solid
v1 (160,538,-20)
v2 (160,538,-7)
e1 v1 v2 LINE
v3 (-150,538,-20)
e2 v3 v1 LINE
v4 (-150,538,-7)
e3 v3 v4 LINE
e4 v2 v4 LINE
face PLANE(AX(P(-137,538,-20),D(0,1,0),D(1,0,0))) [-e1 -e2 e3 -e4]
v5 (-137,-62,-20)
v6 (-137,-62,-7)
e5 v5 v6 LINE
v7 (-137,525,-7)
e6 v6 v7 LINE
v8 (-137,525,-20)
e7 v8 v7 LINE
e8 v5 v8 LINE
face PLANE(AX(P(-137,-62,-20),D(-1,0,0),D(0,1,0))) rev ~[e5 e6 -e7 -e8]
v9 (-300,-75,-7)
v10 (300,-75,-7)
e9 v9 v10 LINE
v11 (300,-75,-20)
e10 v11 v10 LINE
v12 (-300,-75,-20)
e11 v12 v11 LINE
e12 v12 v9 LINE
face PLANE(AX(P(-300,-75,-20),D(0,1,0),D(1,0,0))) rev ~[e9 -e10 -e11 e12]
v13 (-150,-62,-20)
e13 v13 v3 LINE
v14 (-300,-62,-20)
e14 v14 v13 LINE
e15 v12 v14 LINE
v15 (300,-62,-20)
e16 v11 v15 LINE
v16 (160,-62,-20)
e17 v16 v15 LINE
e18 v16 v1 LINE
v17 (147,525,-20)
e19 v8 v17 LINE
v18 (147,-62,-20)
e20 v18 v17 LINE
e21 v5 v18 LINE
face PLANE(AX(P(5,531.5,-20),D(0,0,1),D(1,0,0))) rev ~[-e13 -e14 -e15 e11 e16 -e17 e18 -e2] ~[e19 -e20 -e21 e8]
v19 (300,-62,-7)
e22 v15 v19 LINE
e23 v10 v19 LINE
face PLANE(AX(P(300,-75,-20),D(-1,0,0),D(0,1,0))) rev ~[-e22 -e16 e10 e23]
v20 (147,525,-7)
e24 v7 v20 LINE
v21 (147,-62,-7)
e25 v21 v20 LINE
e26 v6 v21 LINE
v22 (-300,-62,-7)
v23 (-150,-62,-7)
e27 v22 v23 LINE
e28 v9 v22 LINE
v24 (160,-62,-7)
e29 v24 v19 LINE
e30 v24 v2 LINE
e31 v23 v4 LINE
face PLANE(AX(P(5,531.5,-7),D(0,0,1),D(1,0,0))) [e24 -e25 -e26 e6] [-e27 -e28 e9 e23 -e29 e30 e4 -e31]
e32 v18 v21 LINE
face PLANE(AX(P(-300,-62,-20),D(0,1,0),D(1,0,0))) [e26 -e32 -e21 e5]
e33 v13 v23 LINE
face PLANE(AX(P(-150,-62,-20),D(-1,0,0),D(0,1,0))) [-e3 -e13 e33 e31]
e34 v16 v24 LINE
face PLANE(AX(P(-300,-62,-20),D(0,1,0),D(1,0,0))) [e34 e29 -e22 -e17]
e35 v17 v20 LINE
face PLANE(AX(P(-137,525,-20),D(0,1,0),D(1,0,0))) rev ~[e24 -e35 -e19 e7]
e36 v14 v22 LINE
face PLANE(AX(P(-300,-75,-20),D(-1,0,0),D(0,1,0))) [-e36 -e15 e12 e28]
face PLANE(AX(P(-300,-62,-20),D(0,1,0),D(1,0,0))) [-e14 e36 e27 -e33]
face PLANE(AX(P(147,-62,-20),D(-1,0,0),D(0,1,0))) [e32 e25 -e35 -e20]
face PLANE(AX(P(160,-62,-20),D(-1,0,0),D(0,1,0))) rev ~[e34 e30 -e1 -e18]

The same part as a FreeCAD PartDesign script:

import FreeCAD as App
import Part
import Sketcher
from FreeCAD import Vector


def add_polygon(sketch, points):
    """Adds a closed chain of lines whose ends are joined by coincident constraints."""
    first, n = sketch.GeometryCount, len(points)
    for a, b in zip(points, points[1:] + points[:1]):
        sketch.addGeometry(Part.LineSegment(App.Vector(*a, 0), App.Vector(*b, 0)), False)
    for i in range(n):
        sketch.addConstraint(Sketcher.Constraint("Coincident", first + i, 2, first + (i + 1) % n, 1))

doc = App.newDocument("Part")
params = doc.addObject("Spreadsheet::Sheet", "Params")
for row, (alias, value) in enumerate([
    ("sketch1_width", "284 mm"),
    ("sketch1_height", "13 mm"),
    ("pad1_length", "13 mm"),
    ("sketch2_width", "13 mm"),
    ("sketch2_height", "600 mm"),
    ("pad2_length", "13 mm"),
    ("sketch3_width", "600 mm"),
    ("sketch3_height", "13 mm"),
    ("pad3_length", "13 mm"),
    ("sketch4_width", "13 mm"),
    ("sketch4_height", "600 mm"),
    ("pad4_length", "13 mm"),
], start=1):
    params.set(f"A{row}", alias)
    params.set(f"B{row}", "=" + value)
    params.setAlias(f"B{row}", alias)

body = doc.addObject("PartDesign::Body", "Body")

# Sketch on XY plane
sketch1 = body.newObject("Sketcher::SketchObject", "Sketch")
sketch1.AttachmentSupport = (doc.getObject("XY_Plane"), [""])
sketch1.MapMode = "FlatFace"
sketch1.AttachmentOffset = App.Placement(Vector(0, 0, -20), App.Rotation())
add_polygon(sketch1, [(-137, 538), (-137, 525), (147, 525), (147, 538)])  # lines 0-3
sketch1.addConstraint(Sketcher.Constraint("Vertical", 0))
sketch1.addConstraint(Sketcher.Constraint("Horizontal", 1))
sketch1.addConstraint(Sketcher.Constraint("Vertical", 2))
sketch1.addConstraint(Sketcher.Constraint("Horizontal", 3))
sketch1.addConstraint(Sketcher.Constraint("DistanceX", 1, 1, 1, 2, 284.0))
sketch1.addConstraint(Sketcher.Constraint("DistanceY", 0, 2, 0, 1, 13.0))
sketch1.addConstraint(Sketcher.Constraint("DistanceX", 0, 2, -1, 1, 137.0))
sketch1.addConstraint(Sketcher.Constraint("DistanceY", -1, 1, 0, 2, 525.0))
sketch1.setExpression("Constraints[8]", "Params.sketch1_width")
sketch1.setExpression("Constraints[9]", "Params.sketch1_height")
pad1 = body.newObject("PartDesign::Pad", "Pad")
pad1.Profile = sketch1
pad1.setExpression("Length", "Params.pad1_length")
body2 = doc.addObject("PartDesign::Body", "Body001")

# Sketch on XY plane
sketch2 = body2.newObject("Sketcher::SketchObject", "Sketch001")
sketch2.AttachmentSupport = (doc.getObject("XY_Plane001"), [""])
sketch2.MapMode = "FlatFace"
sketch2.AttachmentOffset = App.Placement(Vector(0, 0, -20), App.Rotation())
add_polygon(sketch2, [(-150, 538), (-150, -62), (-137, -62), (-137, 538)])  # lines 0-3
sketch2.addConstraint(Sketcher.Constraint("Vertical", 0))
sketch2.addConstraint(Sketcher.Constraint("Horizontal", 1))
sketch2.addConstraint(Sketcher.Constraint("Vertical", 2))
sketch2.addConstraint(Sketcher.Constraint("Horizontal", 3))
sketch2.addConstraint(Sketcher.Constraint("DistanceX", 1, 1, 1, 2, 13.0))
sketch2.addConstraint(Sketcher.Constraint("DistanceY", 0, 2, 0, 1, 600.0))
sketch2.addConstraint(Sketcher.Constraint("DistanceX", 0, 2, -1, 1, 150.0))
sketch2.addConstraint(Sketcher.Constraint("DistanceY", 0, 2, -1, 1, 62.0))
sketch2.setExpression("Constraints[8]", "Params.sketch2_width")
sketch2.setExpression("Constraints[9]", "Params.sketch2_height")
pad2 = body2.newObject("PartDesign::Pad", "Pad001")
pad2.Profile = sketch2
pad2.setExpression("Length", "Params.pad2_length")
body3 = doc.addObject("PartDesign::Body", "Body002")

# Sketch on XY plane
sketch3 = body3.newObject("Sketcher::SketchObject", "Sketch002")
sketch3.AttachmentSupport = (doc.getObject("XY_Plane002"), [""])
sketch3.MapMode = "FlatFace"
sketch3.AttachmentOffset = App.Placement(Vector(0, 0, -20), App.Rotation())
add_polygon(sketch3, [(-300, -62), (-300, -75), (300, -75), (300, -62)])  # lines 0-3
sketch3.addConstraint(Sketcher.Constraint("Vertical", 0))
sketch3.addConstraint(Sketcher.Constraint("Horizontal", 1))
sketch3.addConstraint(Sketcher.Constraint("Vertical", 2))
sketch3.addConstraint(Sketcher.Constraint("Horizontal", 3))
sketch3.addConstraint(Sketcher.Constraint("DistanceX", 1, 1, 1, 2, 600.0))
sketch3.addConstraint(Sketcher.Constraint("DistanceY", 0, 2, 0, 1, 13.0))
sketch3.addConstraint(Sketcher.Constraint("DistanceX", 0, 2, -1, 1, 300.0))
sketch3.addConstraint(Sketcher.Constraint("DistanceY", 0, 2, -1, 1, 75.0))
sketch3.setExpression("Constraints[8]", "Params.sketch3_width")
sketch3.setExpression("Constraints[9]", "Params.sketch3_height")
pad3 = body3.newObject("PartDesign::Pad", "Pad002")
pad3.Profile = sketch3
pad3.setExpression("Length", "Params.pad3_length")
body4 = doc.addObject("PartDesign::Body", "Body003")
body4.AllowCompound = True

# Sketch on XY plane
sketch4 = body4.newObject("Sketcher::SketchObject", "Sketch003")
sketch4.AttachmentSupport = (doc.getObject("XY_Plane003"), [""])
sketch4.MapMode = "FlatFace"
sketch4.AttachmentOffset = App.Placement(Vector(0, 0, -20), App.Rotation())
add_polygon(sketch4, [(147, 538), (147, -62), (160, -62), (160, 538)])  # lines 0-3
sketch4.addConstraint(Sketcher.Constraint("Vertical", 0))
sketch4.addConstraint(Sketcher.Constraint("Horizontal", 1))
sketch4.addConstraint(Sketcher.Constraint("Vertical", 2))
sketch4.addConstraint(Sketcher.Constraint("Horizontal", 3))
sketch4.addConstraint(Sketcher.Constraint("DistanceX", 1, 1, 1, 2, 13.0))
sketch4.addConstraint(Sketcher.Constraint("DistanceY", 0, 2, 0, 1, 600.0))
sketch4.addConstraint(Sketcher.Constraint("DistanceX", -1, 1, 0, 2, 147.0))
sketch4.addConstraint(Sketcher.Constraint("DistanceY", 0, 2, -1, 1, 62.0))
sketch4.setExpression("Constraints[8]", "Params.sketch4_width")
sketch4.setExpression("Constraints[9]", "Params.sketch4_height")
pad4 = body4.newObject("PartDesign::Pad", "Pad003")
pad4.Profile = sketch4
pad4.setExpression("Length", "Params.pad4_length")
doc.recompute()

boolean = body4.newObject("PartDesign::Boolean", "Boolean")
boolean.Type = "Fuse"
boolean.addObjects([body2])
doc.recompute()

boolean2 = body4.newObject("PartDesign::Boolean", "Boolean001")
boolean2.Type = "Fuse"
boolean2.addObjects([body3])
doc.recompute()

boolean3 = body4.newObject("PartDesign::Boolean", "Boolean002")
boolean3.Type = "Fuse"
boolean3.addObjects([body])

doc.recompute()
